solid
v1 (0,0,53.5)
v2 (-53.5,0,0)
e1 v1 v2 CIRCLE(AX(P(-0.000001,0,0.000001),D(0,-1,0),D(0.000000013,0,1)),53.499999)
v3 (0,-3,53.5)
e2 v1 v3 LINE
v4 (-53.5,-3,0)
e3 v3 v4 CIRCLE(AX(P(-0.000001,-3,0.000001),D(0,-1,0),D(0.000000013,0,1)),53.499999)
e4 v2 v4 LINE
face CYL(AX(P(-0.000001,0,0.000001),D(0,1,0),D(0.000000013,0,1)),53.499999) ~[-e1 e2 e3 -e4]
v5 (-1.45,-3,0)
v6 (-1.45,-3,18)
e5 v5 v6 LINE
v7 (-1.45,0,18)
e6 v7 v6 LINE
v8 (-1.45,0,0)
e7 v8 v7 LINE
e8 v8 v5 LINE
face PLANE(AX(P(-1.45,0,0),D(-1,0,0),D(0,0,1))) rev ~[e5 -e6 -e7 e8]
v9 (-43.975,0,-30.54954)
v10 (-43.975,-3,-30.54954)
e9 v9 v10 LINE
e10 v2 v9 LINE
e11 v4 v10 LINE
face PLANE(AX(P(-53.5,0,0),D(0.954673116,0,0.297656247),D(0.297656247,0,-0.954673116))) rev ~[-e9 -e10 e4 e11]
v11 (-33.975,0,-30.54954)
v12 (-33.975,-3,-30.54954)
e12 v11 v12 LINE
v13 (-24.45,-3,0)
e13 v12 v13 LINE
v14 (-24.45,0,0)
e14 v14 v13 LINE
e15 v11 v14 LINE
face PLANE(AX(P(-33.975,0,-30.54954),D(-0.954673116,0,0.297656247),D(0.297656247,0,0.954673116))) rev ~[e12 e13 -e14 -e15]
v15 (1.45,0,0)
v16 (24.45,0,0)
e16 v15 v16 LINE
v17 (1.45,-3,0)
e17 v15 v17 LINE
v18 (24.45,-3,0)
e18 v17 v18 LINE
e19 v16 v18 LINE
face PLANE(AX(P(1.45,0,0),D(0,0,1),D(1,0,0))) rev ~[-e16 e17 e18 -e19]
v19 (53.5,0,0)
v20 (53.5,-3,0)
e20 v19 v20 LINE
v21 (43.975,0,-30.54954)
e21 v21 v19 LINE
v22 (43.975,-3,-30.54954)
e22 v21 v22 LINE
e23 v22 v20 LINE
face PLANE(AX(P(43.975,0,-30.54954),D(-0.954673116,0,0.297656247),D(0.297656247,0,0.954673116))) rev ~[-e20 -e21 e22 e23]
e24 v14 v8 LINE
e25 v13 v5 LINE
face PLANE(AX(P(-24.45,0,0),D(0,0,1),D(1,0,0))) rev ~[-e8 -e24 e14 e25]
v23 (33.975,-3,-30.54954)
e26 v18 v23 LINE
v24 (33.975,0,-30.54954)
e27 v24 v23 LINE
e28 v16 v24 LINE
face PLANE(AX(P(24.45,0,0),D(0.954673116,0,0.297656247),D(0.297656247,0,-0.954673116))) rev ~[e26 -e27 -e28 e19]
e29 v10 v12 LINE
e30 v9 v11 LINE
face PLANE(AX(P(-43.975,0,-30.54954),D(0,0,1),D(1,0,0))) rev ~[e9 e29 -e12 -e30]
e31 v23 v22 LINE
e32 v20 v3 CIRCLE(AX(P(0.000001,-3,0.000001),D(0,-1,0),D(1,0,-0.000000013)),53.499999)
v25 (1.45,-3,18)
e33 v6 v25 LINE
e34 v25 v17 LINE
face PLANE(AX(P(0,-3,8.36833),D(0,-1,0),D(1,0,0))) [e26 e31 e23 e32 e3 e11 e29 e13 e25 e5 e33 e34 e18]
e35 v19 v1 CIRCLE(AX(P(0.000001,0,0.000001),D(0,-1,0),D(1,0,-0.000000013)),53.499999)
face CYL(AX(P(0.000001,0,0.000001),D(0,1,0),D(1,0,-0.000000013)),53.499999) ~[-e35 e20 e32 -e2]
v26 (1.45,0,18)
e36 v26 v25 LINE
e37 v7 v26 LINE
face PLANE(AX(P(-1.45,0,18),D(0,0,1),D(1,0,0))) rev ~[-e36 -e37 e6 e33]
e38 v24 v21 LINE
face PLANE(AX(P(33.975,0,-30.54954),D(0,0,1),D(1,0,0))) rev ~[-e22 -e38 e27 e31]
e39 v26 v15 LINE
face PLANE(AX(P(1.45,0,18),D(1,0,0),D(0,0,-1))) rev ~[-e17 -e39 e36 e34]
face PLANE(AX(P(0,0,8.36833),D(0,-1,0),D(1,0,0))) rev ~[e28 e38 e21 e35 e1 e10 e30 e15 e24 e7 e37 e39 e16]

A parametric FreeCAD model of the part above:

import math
import FreeCAD as App
import Part
import Sketcher

doc = App.newDocument("Part")
body = doc.addObject("PartDesign::Body", "Body")

# Sketch on XZ plane
sketch1 = body.newObject("Sketcher::SketchObject", "Sketch")
sketch1.AttachmentSupport = (doc.getObject("XZ_Plane"), [""])
sketch1.MapMode = "FlatFace"
sketch1.addGeometry(Part.LineSegment(App.Vector(44, -30.5, 0), App.Vector(53.5, 0, 0)), False)
sketch1.addGeometry(Part.ArcOfCircle(Part.Circle(App.Vector(0, 0, 0), App.Vector(0, 0, 1), 53.5), math.radians(0), math.radians(90)), False)
sketch1.addGeometry(Part.ArcOfCircle(Part.Circle(App.Vector(0, 0, 0), App.Vector(0, 0, 1), 53.5), math.radians(90), math.radians(180)), False)
sketch1.addGeometry(Part.LineSegment(App.Vector(-53.5, 0, 0), App.Vector(-44, -30.5, 0)), False)
sketch1.addGeometry(Part.LineSegment(App.Vector(-44, -30.5, 0), App.Vector(-34, -30.5, 0)), False)
sketch1.addGeometry(Part.LineSegment(App.Vector(-34, -30.5, 0), App.Vector(-24.4, 0, 0)), False)
sketch1.addGeometry(Part.LineSegment(App.Vector(-24.4, 0, 0), App.Vector(-1.4, 0, 0)), False)
sketch1.addGeometry(Part.LineSegment(App.Vector(-1.4, 0, 0), App.Vector(-1.4, 18, 0)), False)
sketch1.addGeometry(Part.LineSegment(App.Vector(-1.4, 18, 0), App.Vector(1.4, 18, 0)), False)
sketch1.addGeometry(Part.LineSegment(App.Vector(1.4, 18, 0), App.Vector(1.4, 0, 0)), False)
sketch1.addGeometry(Part.LineSegment(App.Vector(1.4, 0, 0), App.Vector(24.4, 0, 0)), False)
sketch1.addGeometry(Part.LineSegment(App.Vector(24.4, 0, 0), App.Vector(34, -30.5, 0)), False)
sketch1.addGeometry(Part.LineSegment(App.Vector(34, -30.5, 0), App.Vector(44, -30.5, 0)), False)
sketch1.addConstraint(Sketcher.Constraint("Coincident", 0, 2, 1, 1))
sketch1.addConstraint(Sketcher.Constraint("Tangent", 1, 2, 2, 1))
sketch1.addConstraint(Sketcher.Constraint("Coincident", 2, 2, 3, 1))
sketch1.addConstraint(Sketcher.Constraint("Coincident", 3, 2, 4, 1))
sketch1.addConstraint(Sketcher.Constraint("Coincident", 4, 2, 5, 1))
sketch1.addConstraint(Sketcher.Constraint("Coincident", 5, 2, 6, 1))
sketch1.addConstraint(Sketcher.Constraint("Coincident", 6, 2, 7, 1))
sketch1.addConstraint(Sketcher.Constraint("Coincident", 7, 2, 8, 1))
sketch1.addConstraint(Sketcher.Constraint("Coincident", 8, 2, 9, 1))
sketch1.addConstraint(Sketcher.Constraint("Coincident", 9, 2, 10, 1))
sketch1.addConstraint(Sketcher.Constraint("Coincident", 10, 2, 11, 1))
sketch1.addConstraint(Sketcher.Constraint("Coincident", 11, 2, 12, 1))
sketch1.addConstraint(Sketcher.Constraint("Coincident", 12, 2, 0, 1))
sketch1.addConstraint(Sketcher.Constraint("Horizontal", 4))
sketch1.addConstraint(Sketcher.Constraint("Horizontal", 6))
sketch1.addConstraint(Sketcher.Constraint("Vertical", 7))
sketch1.addConstraint(Sketcher.Constraint("Horizontal", 8))
sketch1.addConstraint(Sketcher.Constraint("Vertical", 9))
sketch1.addConstraint(Sketcher.Constraint("Horizontal", 10))
sketch1.addConstraint(Sketcher.Constraint("Horizontal", 12))
sketch1.addConstraint(Sketcher.Constraint("Coincident", 1, 3, -1, 1))
sketch1.addConstraint(Sketcher.Constraint("Equal", 1, 2))
sketch1.addConstraint(Sketcher.Constraint("Symmetric", 6, 2, 9, 2, -1, 1))
sketch1.addConstraint(Sketcher.Constraint("Symmetric", 5, 2, 10, 2, -2))
sketch1.addConstraint(Sketcher.Constraint("Symmetric", 4, 2, 11, 2, -2))
sketch1.addConstraint(Sketcher.Constraint("PointOnObject", 0, 2, -1))
sketch1.addConstraint(Sketcher.Constraint("PointOnObject", 1, 2, -2))
sketch1.addConstraint(Sketcher.Constraint("PointOnObject", 2, 2, -1))
sketch1.addConstraint(Sketcher.Constraint("Parallel", 0, 5))
sketch1.addConstraint(Sketcher.Constraint("Parallel", 3, 11))
sketch1.addConstraint(Sketcher.Constraint("Radius", 1, 53.499999))
sketch1.addConstraint(Sketcher.Constraint("DistanceX", 4, 1, 4, 2, 10.0))
sketch1.addConstraint(Sketcher.Constraint("DistanceX", 6, 1, 6, 2, 23.0))
sketch1.addConstraint(Sketcher.Constraint("DistanceY", 7, 1, 7, 2, 18.0))
sketch1.addConstraint(Sketcher.Constraint("Distance", 0, 32.0))
sketch1.addConstraint(Sketcher.Constraint("DistanceX", 8, 1, 8, 2, 2.9))
pad1 = body.newObject("PartDesign::Pad", "Pad")
pad1.Profile = sketch1
pad1.Length = 3

doc.recompute()
